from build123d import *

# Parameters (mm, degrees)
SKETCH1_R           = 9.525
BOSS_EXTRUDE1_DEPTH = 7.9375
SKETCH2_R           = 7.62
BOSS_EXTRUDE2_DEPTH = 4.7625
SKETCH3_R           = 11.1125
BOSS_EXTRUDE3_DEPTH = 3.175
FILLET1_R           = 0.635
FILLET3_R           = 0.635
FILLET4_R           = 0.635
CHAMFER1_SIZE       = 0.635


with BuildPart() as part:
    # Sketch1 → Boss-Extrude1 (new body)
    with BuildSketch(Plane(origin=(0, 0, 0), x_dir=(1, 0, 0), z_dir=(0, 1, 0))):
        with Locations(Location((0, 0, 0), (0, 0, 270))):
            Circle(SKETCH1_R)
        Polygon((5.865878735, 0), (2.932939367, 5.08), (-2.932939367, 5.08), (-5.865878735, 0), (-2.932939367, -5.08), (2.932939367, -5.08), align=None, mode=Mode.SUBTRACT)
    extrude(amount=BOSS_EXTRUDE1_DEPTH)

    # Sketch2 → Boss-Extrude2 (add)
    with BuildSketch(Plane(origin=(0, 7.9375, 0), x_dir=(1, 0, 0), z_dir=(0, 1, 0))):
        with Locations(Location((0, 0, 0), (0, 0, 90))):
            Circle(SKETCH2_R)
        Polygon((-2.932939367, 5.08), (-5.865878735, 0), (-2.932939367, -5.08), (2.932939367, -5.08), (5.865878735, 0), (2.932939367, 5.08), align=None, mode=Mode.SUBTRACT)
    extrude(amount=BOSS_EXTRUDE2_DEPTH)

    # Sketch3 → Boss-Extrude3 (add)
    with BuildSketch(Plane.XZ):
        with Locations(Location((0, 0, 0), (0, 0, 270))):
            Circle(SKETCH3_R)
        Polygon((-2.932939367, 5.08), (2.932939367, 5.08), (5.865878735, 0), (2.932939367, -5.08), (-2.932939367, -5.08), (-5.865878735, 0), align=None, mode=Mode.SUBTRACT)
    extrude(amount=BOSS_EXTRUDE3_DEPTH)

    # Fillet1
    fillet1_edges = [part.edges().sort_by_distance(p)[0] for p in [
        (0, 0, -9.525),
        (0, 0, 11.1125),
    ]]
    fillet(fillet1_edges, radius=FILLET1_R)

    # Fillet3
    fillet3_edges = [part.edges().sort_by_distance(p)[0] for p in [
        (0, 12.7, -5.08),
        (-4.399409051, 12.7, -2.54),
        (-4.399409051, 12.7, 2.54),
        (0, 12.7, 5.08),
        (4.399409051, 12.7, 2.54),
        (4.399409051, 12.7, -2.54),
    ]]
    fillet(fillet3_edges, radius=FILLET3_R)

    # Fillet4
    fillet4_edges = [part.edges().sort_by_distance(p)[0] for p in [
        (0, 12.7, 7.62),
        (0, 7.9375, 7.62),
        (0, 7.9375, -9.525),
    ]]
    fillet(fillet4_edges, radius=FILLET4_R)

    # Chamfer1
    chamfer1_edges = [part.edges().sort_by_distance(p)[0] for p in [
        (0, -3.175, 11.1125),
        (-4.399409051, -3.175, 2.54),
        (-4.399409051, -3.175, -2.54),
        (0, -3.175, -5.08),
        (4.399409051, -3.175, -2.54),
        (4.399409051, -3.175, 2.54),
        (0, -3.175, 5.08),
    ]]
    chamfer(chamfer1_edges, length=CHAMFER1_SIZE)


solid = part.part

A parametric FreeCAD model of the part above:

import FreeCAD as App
import Part
import Sketcher
Q = App.Units.Quantity


def edges_at(feature, points):
    """Names of the edges that pass closest to the given points."""
    edges = feature.Shape.Edges
    near = lambda p: min(range(len(edges)), key=lambda i: edges[i].distToShape(Part.Vertex(*p))[0])
    return sorted({f"Edge{near(p) + 1}" for p in points})


def add_polygon(sketch, points):
    """Adds a closed chain of lines whose ends are joined by coincident constraints."""
    first, n = sketch.GeometryCount, len(points)
    for a, b in zip(points, points[1:] + points[:1]):
        sketch.addGeometry(Part.LineSegment(App.Vector(*a, 0), App.Vector(*b, 0)), False)
    for i in range(n):
        sketch.addConstraint(Sketcher.Constraint("Coincident", first + i, 2, first + (i + 1) % n, 1))

doc = App.newDocument("Part")
body = doc.addObject("PartDesign::Body", "Body")

sketch1 = body.newObject("Sketcher::SketchObject", "Sketch")
sketch1.AttachmentSupport = (doc.getObject("XZ_Plane"), [""])
sketch1.MapMode = "FlatFace"
sketch1.addGeometry(Part.Circle(App.Vector(0, 0, 0), App.Vector(0, 0, 1), 10), False)
add_polygon(sketch1, [(3, -5), (6, 0), (3, 5), (-3, 5), (-6, 0), (-3, -5)])
sketch1.addConstraint([
    Sketcher.Constraint("Horizontal", 3),
    Sketcher.Constraint("Horizontal", 6),
    Sketcher.Constraint("Coincident", 0, 3, -1, 1),
    Sketcher.Constraint("Symmetric", 1, 2, 4, 2, -1, 1),
    Sketcher.Constraint("Symmetric", 2, 2, 5, 2, -1, 1),
    Sketcher.Constraint("PointOnObject", 1, 2, -1),
    Sketcher.Constraint("Parallel", 1, 4),
    Sketcher.Constraint("Vertical", 3, 2, 5, 2),
    Sketcher.Constraint("Diameter", 0, Q("0.75 in")),
    Sketcher.Constraint("Angle", 1, Q("60 deg")),
    Sketcher.Constraint("DistanceY", -1, 1, 2, 2, Q("0.2 in")),
    Sketcher.Constraint("DistanceX", 3, 2, 3, 1, 5.865879),
])
pad1 = body.newObject("PartDesign::Pad", "Pad")
pad1.Profile = sketch1
pad1.Length = Q("0.3125 in")
pad1.Reversed = True

sketch2 = body.newObject("Sketcher::SketchObject", "Sketch001")
sketch2.AttachmentSupport = (doc.getObject("XZ_Plane"), [""])
sketch2.MapMode = "FlatFace"
sketch2.AttachmentOffset = App.Placement(App.Vector(0, 0, -0.3125 * 25.4), App.Rotation())
sketch2.addGeometry(Part.Circle(App.Vector(0, 0, 0), App.Vector(0, 0, 1), 8), False)
add_polygon(sketch2, [(-6, 0), (-3, -5), (3, -5), (6, 0), (3, 5), (-3, 5)])
sketch2.addConstraint([
    Sketcher.Constraint("Horizontal", 2),
    Sketcher.Constraint("Horizontal", 5),
    Sketcher.Constraint("Coincident", 0, 3, -1, 1),
    Sketcher.Constraint("Symmetric", 1, 2, 4, 2, -1, 1),
    Sketcher.Constraint("Symmetric", 3, 2, 6, 2, -1, 1),
    Sketcher.Constraint("PointOnObject", 3, 2, -1),
    Sketcher.Constraint("Parallel", 3, 6),
    Sketcher.Constraint("Vertical", 2, 2, 4, 2),
    Sketcher.Constraint("Diameter", 0, Q("0.6 in")),
    Sketcher.Constraint("Angle", 1, Q("-60 deg")),
    Sketcher.Constraint("DistanceY", 1, 2, -1, 1, Q("0.2 in")),
    Sketcher.Constraint("DistanceX", 2, 1, 2, 2, 5.865879),
])
pad2 = body.newObject("PartDesign::Pad", "Pad001")
pad2.Profile = sketch2
pad2.Length = Q("0.1875 in")
pad2.Reversed = True

sketch3 = body.newObject("Sketcher::SketchObject", "Sketch002")
sketch3.AttachmentSupport = (doc.getObject("XZ_Plane"), [""])
sketch3.MapMode = "FlatFace"
sketch3.addGeometry(Part.Circle(App.Vector(0, 0, 0), App.Vector(0, 0, 1), 11), False)
add_polygon(sketch3, [(-6, 0), (-3, 5), (3, 5), (6, 0), (3, -5), (-3, -5)])
sketch3.addConstraint([
    Sketcher.Constraint("Horizontal", 2),
    Sketcher.Constraint("Horizontal", 5),
    Sketcher.Constraint("Coincident", 0, 3, -1, 1),
    Sketcher.Constraint("Symmetric", 1, 2, 4, 2, -1, 1),
    Sketcher.Constraint("Symmetric", 3, 2, 6, 2, -1, 1),
    Sketcher.Constraint("PointOnObject", 3, 2, -1),
    Sketcher.Constraint("Parallel", 3, 6),
    Sketcher.Constraint("Vertical", 2, 2, 4, 2),
    Sketcher.Constraint("Diameter", 0, Q("0.875 in")),
    Sketcher.Constraint("Angle", 1, Q("60 deg")),
    Sketcher.Constraint("DistanceY", -1, 1, 1, 2, Q("0.2 in")),
    Sketcher.Constraint("DistanceX", 2, 1, 2, 2, 5.865879),
])
pad3 = body.newObject("PartDesign::Pad", "Pad002")
pad3.Profile = sketch3
pad3.Length = Q("0.125 in")
doc.recompute()

fillet = body.newObject("PartDesign::Fillet", "Fillet")
fillet.Base = (pad3, edges_at(pad3, [(0, 0, -9.525), (0, 0, 11.113)]))
fillet.Radius = Q("0.025 in")
doc.recompute()

fillet2 = body.newObject("PartDesign::Fillet", "Fillet001")
fillet2.Base = (fillet, edges_at(fillet, [
    (0, 12.7, -5.08),
    (-4.399, 12.7, -2.54),
    (-4.399, 12.7, 2.54),
    (0, 12.7, 5.08),
    (4.399, 12.7, 2.54),
    (4.399, 12.7, -2.54),
]))
fillet2.Radius = Q("0.025 in")
doc.recompute()

fillet3 = body.newObject("PartDesign::Fillet", "Fillet002")
fillet3.Base = (fillet2, edges_at(fillet2, [(0, 12.7, 7.62), (0, 7.938, 7.62), (0, 7.938, -9.525)]))
fillet3.Radius = Q("0.025 in")
doc.recompute()

chamfer = body.newObject("PartDesign::Chamfer", "Chamfer")
chamfer.Base = (fillet3, edges_at(fillet3, [
    (0, -3.175, 11.113),
    (-4.399, -3.175, 2.54),
    (-4.399, -3.175, -2.54),
    (0, -3.175, -5.08),
    (4.399, -3.175, -2.54),
    (4.399, -3.175, 2.54),
    (0, -3.175, 5.08),
]))
chamfer.Size = Q("0.025 in")

doc.recompute()
